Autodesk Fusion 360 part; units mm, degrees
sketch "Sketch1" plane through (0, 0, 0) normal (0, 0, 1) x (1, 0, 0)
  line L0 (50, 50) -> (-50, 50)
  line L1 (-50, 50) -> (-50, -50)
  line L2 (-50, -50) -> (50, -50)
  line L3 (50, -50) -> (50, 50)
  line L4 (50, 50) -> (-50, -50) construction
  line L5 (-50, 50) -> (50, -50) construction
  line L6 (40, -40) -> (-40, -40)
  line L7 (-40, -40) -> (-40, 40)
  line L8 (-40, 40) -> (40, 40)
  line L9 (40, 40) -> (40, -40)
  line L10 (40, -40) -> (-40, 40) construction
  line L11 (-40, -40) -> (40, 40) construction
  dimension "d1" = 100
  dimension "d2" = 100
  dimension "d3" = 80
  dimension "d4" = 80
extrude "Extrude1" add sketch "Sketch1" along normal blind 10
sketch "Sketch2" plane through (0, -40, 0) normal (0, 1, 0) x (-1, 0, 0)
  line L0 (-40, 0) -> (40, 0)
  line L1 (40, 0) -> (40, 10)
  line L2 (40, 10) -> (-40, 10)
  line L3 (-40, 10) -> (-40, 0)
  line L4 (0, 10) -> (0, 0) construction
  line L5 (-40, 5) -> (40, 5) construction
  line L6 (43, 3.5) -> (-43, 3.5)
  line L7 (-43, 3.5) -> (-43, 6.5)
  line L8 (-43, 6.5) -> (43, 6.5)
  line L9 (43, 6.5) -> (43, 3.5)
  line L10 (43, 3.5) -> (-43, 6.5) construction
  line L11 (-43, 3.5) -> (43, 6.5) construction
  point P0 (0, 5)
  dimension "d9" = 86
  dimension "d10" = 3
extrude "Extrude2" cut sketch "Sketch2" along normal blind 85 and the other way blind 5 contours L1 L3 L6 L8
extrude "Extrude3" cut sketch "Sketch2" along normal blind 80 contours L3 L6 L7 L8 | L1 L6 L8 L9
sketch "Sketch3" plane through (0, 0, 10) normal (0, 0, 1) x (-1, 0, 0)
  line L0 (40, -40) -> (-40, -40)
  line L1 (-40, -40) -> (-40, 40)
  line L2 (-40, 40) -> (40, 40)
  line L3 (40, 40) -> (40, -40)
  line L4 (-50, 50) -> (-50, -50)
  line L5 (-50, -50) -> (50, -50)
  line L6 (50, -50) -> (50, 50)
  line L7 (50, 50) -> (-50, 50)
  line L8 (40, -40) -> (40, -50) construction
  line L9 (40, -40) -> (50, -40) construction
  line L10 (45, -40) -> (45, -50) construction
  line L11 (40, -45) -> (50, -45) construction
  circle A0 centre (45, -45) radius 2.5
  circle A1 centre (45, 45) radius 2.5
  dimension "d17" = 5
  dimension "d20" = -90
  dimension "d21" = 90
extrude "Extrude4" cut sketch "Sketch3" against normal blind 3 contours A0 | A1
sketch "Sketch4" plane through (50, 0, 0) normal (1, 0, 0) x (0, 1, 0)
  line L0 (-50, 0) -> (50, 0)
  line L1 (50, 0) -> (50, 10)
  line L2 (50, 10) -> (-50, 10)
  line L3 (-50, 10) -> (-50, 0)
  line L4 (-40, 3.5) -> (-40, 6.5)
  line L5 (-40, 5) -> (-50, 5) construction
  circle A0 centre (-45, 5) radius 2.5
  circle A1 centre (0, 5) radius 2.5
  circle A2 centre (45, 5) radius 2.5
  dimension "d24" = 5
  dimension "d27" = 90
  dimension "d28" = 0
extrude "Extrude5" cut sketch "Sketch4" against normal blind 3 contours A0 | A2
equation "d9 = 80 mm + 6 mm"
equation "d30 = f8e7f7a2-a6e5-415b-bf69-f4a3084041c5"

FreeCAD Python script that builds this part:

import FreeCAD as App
import Part
import Sketcher
from FreeCAD import Vector

doc = App.newDocument("Part")
params = doc.addObject("Spreadsheet::Sheet", "Params")
for row, (alias, value) in enumerate([
    ("sketch1_width", "100 mm"),
    ("sketch1_width2", "80 mm"),
    ("pad1_length", "10 mm"),
    ("sketch2_height", "3 mm"),
    ("sketch2_width", "80 mm"),
    ("pocket1_length", "85 mm"),
    ("pocket1_length2", "5 mm"),
    ("sketch3_width", "3 mm"),
    ("pocket2_length", "80 mm"),
    ("sketch4_diameter", "5 mm"),
    ("pocket3_length", "3 mm"),
    ("sketch5_diameter", "5 mm"),
    ("pocket4_length", "3 mm"),
], start=1):
    params.set(f"A{row}", alias)
    params.set(f"B{row}", "=" + value)
    params.setAlias(f"B{row}", alias)

body = doc.addObject("PartDesign::Body", "Body")

# Sketch on XY plane
sketch1 = body.newObject("Sketcher::SketchObject", "Sketch")
sketch1.AttachmentSupport = (doc.getObject("XY_Plane"), [""])
sketch1.MapMode = "FlatFace"
sketch1.addGeometry([
    Part.LineSegment(Vector(50, -50, 0), Vector(50, 50, 0)),  # 0
    Part.LineSegment(Vector(50, 50, 0), Vector(-50, 50, 0)),  # 1
    Part.LineSegment(Vector(-50, 50, 0), Vector(-50, -50, 0)),  # 2
    Part.LineSegment(Vector(-50, -50, 0), Vector(50, -50, 0)),  # 3
    Part.LineSegment(Vector(40, 40, 0), Vector(40, -40, 0)),  # 4
    Part.LineSegment(Vector(40, -40, 0), Vector(-40, -40, 0)),  # 5
    Part.LineSegment(Vector(-40, -40, 0), Vector(-40, 40, 0)),  # 6
    Part.LineSegment(Vector(-40, 40, 0), Vector(40, 40, 0)),  # 7
], False)
sketch1.addConstraint([
    Sketcher.Constraint("Coincident", 0, 2, 1, 1),
    Sketcher.Constraint("Coincident", 1, 2, 2, 1),
    Sketcher.Constraint("Coincident", 2, 2, 3, 1),
    Sketcher.Constraint("Coincident", 3, 2, 0, 1),
    Sketcher.Constraint("Coincident", 4, 2, 5, 1),
    Sketcher.Constraint("Coincident", 5, 2, 6, 1),
    Sketcher.Constraint("Coincident", 6, 2, 7, 1),
    Sketcher.Constraint("Coincident", 7, 2, 4, 1),
    Sketcher.Constraint("Vertical", 0),
    Sketcher.Constraint("Horizontal", 1),
    Sketcher.Constraint("Vertical", 2),
    Sketcher.Constraint("Horizontal", 3),
    Sketcher.Constraint("Vertical", 4),
    Sketcher.Constraint("Horizontal", 5),
    Sketcher.Constraint("Vertical", 6),
    Sketcher.Constraint("Horizontal", 7),
    Sketcher.Constraint("Symmetric", 0, 2, 2, 2, -1, 1),
    Sketcher.Constraint("Symmetric", 4, 2, 6, 2, -1, 1),
    Sketcher.Constraint("Equal", 3, 0),
    Sketcher.Constraint("Equal", 7, 4),
    Sketcher.Constraint("DistanceX", 1, 2, 1, 1, 100.0),
    Sketcher.Constraint("DistanceX", 5, 2, 5, 1, 80.0),
])
sketch1.setExpression("Constraints[20]", "Params.sketch1_width")
sketch1.setExpression("Constraints[21]", "Params.sketch1_width2")
pad1 = body.newObject("PartDesign::Pad", "Pad")
pad1.Profile = sketch1
pad1.setExpression("Length", "Params.pad1_length")

# Sketch on XZ plane
sketch2 = body.newObject("Sketcher::SketchObject", "Sketch001")
sketch2.AttachmentSupport = (doc.getObject("XZ_Plane"), [""])
sketch2.MapMode = "FlatFace"
sketch2.AttachmentOffset = App.Placement(Vector(0, 0, 40), App.Rotation())
sketch2.addGeometry([
    Part.LineSegment(Vector(40, 6.5, 0), Vector(40, 3.5, 0)),
    Part.LineSegment(Vector(40, 3.5, 0), Vector(-40, 3.5, 0)),
    Part.LineSegment(Vector(-40, 3.5, 0), Vector(-40, 6.5, 0)),
    Part.LineSegment(Vector(-40, 6.5, 0), Vector(40, 6.5, 0)),
], False)
sketch2.addConstraint([
    Sketcher.Constraint("Coincident", 0, 2, 1, 1),
    Sketcher.Constraint("Coincident", 1, 2, 2, 1),
    Sketcher.Constraint("Coincident", 2, 2, 3, 1),
    Sketcher.Constraint("Coincident", 3, 2, 0, 1),
    Sketcher.Constraint("Vertical", 0),
    Sketcher.Constraint("Horizontal", 1),
    Sketcher.Constraint("Vertical", 2),
    Sketcher.Constraint("Horizontal", 3),
    Sketcher.Constraint("DistanceY", 0, 2, 0, 1, 3.0),
    Sketcher.Constraint("DistanceX", 1, 2, 1, 1, 80.0),
    Sketcher.Constraint("DistanceX", -1, 1, 0, 2, 40.0),
    Sketcher.Constraint("DistanceY", -1, 1, 0, 2, 3.5),
])
sketch2.setExpression("Constraints[8]", "Params.sketch2_height")
sketch2.setExpression("Constraints[9]", "Params.sketch2_width")
pocket1 = body.newObject("PartDesign::Pocket", "Pocket")
pocket1.Profile = sketch2
pocket1.Type = "TwoLengths"
pocket1.setExpression("Length", "Params.pocket1_length")
pocket1.setExpression("Length2", "Params.pocket1_length2")

# Sketch on XZ plane
sketch3 = body.newObject("Sketcher::SketchObject", "Sketch002")
sketch3.AttachmentSupport = (doc.getObject("XZ_Plane"), [""])
sketch3.MapMode = "FlatFace"
sketch3.AttachmentOffset = App.Placement(Vector(0, 0, 40), App.Rotation())
sketch3.addGeometry([
    Part.LineSegment(Vector(43, 3.5, 0), Vector(40, 3.5, 0)),  # 0
    Part.LineSegment(Vector(40, 3.5, 0), Vector(40, 6.5, 0)),  # 1
    Part.LineSegment(Vector(40, 6.5, 0), Vector(43, 6.5, 0)),  # 2
    Part.LineSegment(Vector(43, 6.5, 0), Vector(43, 3.5, 0)),  # 3
    Part.LineSegment(Vector(-40, 6.5, 0), Vector(-40, 3.5, 0)),  # 4
    Part.LineSegment(Vector(-40, 3.5, 0), Vector(-43, 3.5, 0)),  # 5
    Part.LineSegment(Vector(-43, 3.5, 0), Vector(-43, 6.5, 0)),  # 6
    Part.LineSegment(Vector(-43, 6.5, 0), Vector(-40, 6.5, 0)),  # 7
], False)
sketch3.addConstraint([
    Sketcher.Constraint("Coincident", 0, 2, 1, 1),
    Sketcher.Constraint("Coincident", 1, 2, 2, 1),
    Sketcher.Constraint("Coincident", 2, 2, 3, 1),
    Sketcher.Constraint("Coincident", 3, 2, 0, 1),
    Sketcher.Constraint("Coincident", 4, 2, 5, 1),
    Sketcher.Constraint("Coincident", 5, 2, 6, 1),
    Sketcher.Constraint("Coincident", 6, 2, 7, 1),
    Sketcher.Constraint("Coincident", 7, 2, 4, 1),
    Sketcher.Constraint("Horizontal", 0),
    Sketcher.Constraint("Vertical", 1),
    Sketcher.Constraint("Horizontal", 2),
    Sketcher.Constraint("Vertical", 3),
    Sketcher.Constraint("Vertical", 4),
    Sketcher.Constraint("Horizontal", 5),
    Sketcher.Constraint("Vertical", 6),
    Sketcher.Constraint("Horizontal", 7),
    Sketcher.Constraint("Symmetric", 0, 2, 4, 2, -2),
    Sketcher.Constraint("Symmetric", 2, 2, 6, 2, -2),
    Sketcher.Constraint("Equal", 7, 1),
    Sketcher.Constraint("DistanceX", 0, 2, 0, 1, 3.0),
    Sketcher.Constraint("DistanceX", 5, 2, 3, 2, 86.0),
    Sketcher.Constraint("DistanceY", -1, 1, 0, 2, 3.5),
])
sketch3.setExpression("Constraints[19]", "Params.sketch3_width")
pocket2 = body.newObject("PartDesign::Pocket", "Pocket001")
pocket2.Profile = sketch3
pocket2.setExpression("Length", "Params.pocket2_length")

# Sketch on XY plane
sketch4 = body.newObject("Sketcher::SketchObject", "Sketch003")
sketch4.AttachmentSupport = (doc.getObject("XY_Plane"), [""])
sketch4.MapMode = "FlatFace"
sketch4.AttachmentOffset = App.Placement(Vector(0, 0, 10), App.Rotation())
sketch4.addGeometry([
    Part.Circle(Vector(-45, 45, 0), Vector(0, 0, 1), 2.5),
    Part.Circle(Vector(-45, -45, 0), Vector(0, 0, 1), 2.5),
], False)
sketch4.addConstraint([
    Sketcher.Constraint("Equal", 0, 1),
    Sketcher.Constraint("Symmetric", 0, 3, 1, 3, -1),
    Sketcher.Constraint("Diameter", 0, 5.0),
    Sketcher.Constraint("DistanceY", 1, 3, 0, 3, 90.0),
    Sketcher.Constraint("DistanceX", 0, 3, -1, 1, 45.0),
])
sketch4.setExpression("Constraints[2]", "Params.sketch4_diameter")
pocket3 = body.newObject("PartDesign::Pocket", "Pocket002")
pocket3.Profile = sketch4
pocket3.setExpression("Length", "Params.pocket3_length")

# Sketch on YZ plane
sketch5 = body.newObject("Sketcher::SketchObject", "Sketch004")
sketch5.AttachmentSupport = (doc.getObject("YZ_Plane"), [""])
sketch5.MapMode = "FlatFace"
sketch5.AttachmentOffset = App.Placement(Vector(0, 0, 50), App.Rotation())
sketch5.addGeometry([
    Part.Circle(Vector(-45, 5, 0), Vector(0, 0, 1), 2.5),
    Part.Circle(Vector(45, 5, 0), Vector(0, 0, 1), 2.5),
], False)
sketch5.addConstraint([
    Sketcher.Constraint("Equal", 0, 1),
    Sketcher.Constraint("Symmetric", 0, 3, 1, 3, -2),
    Sketcher.Constraint("Diameter", 0, 5.0),
    Sketcher.Constraint("DistanceY", -1, 1, 0, 3, 5.0),
    Sketcher.Constraint("DistanceX", 0, 3, 1, 3, 90.0),
])
sketch5.setExpression("Constraints[2]", "Params.sketch5_diameter")
pocket4 = body.newObject("PartDesign::Pocket", "Pocket003")
pocket4.Profile = sketch5
pocket4.setExpression("Length", "Params.pocket4_length")

doc.recompute()
